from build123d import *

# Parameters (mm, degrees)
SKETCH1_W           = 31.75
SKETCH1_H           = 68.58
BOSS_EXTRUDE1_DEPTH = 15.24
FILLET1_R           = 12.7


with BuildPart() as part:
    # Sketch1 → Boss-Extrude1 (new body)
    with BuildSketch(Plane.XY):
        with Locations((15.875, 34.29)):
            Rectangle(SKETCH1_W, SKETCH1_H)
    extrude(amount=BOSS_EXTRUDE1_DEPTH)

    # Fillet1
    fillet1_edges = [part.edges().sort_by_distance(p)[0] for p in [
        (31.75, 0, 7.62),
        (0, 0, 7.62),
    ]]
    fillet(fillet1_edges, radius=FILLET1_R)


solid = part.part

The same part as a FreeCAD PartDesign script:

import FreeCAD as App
import Part
import Sketcher

V = App.Vector
Q = App.Units.Quantity


def edges_at(feature, points):
    """Names of the edges that pass closest to the given points."""
    edges = feature.Shape.Edges
    near = lambda p: min(range(len(edges)), key=lambda i: edges[i].distToShape(Part.Vertex(*p))[0])
    return sorted({f"Edge{near(p) + 1}" for p in points})

doc = App.newDocument("Part")
body = doc.addObject("PartDesign::Body", "Body")

# Sketch on XY plane
sketch1 = doc.addObject("Sketcher::SketchObject", "Sketch")
body.addObject(sketch1)
sketch1.AttachmentSupport = (doc.XY_Plane, [""])
sketch1.MapMode = "FlatFace"
sketch1.addGeometry(Part.LineSegment(V(0, 68.58, 0), V(0, 0, 0)), False)
sketch1.addGeometry(Part.LineSegment(V(0, 0, 0), V(31.75, 0, 0)), False)
sketch1.addGeometry(Part.LineSegment(V(31.75, 0, 0), V(31.75, 68.58, 0)), False)
sketch1.addGeometry(Part.LineSegment(V(31.75, 68.58, 0), V(0, 68.58, 0)), False)
sketch1.addConstraint(Sketcher.Constraint("Coincident", 0, 2, 1, 1))
sketch1.addConstraint(Sketcher.Constraint("Coincident", 1, 2, 2, 1))
sketch1.addConstraint(Sketcher.Constraint("Coincident", 2, 2, 3, 1))
sketch1.addConstraint(Sketcher.Constraint("Coincident", 3, 2, 0, 1))
sketch1.addConstraint(Sketcher.Constraint("Vertical", 0))
sketch1.addConstraint(Sketcher.Constraint("Horizontal", 1))
sketch1.addConstraint(Sketcher.Constraint("Vertical", 2))
sketch1.addConstraint(Sketcher.Constraint("Horizontal", 3))
sketch1.addConstraint(Sketcher.Constraint("Coincident", 0, 2, -1, 1))
sketch1.addConstraint(Sketcher.Constraint("DistanceY", 0, 2, 0, 1, Q("2.7 in")))
sketch1.addConstraint(Sketcher.Constraint("DistanceX", 1, 1, 1, 2, Q("1.25 in")))
pad1 = doc.addObject("PartDesign::Pad", "Pad")
body.addObject(pad1)
pad1.Profile = sketch1
pad1.Length = Q("0.6 in")
doc.recompute()

fillet = doc.addObject("PartDesign::Fillet", "Fillet")
body.addObject(fillet)
fillet.Base = (pad1, edges_at(pad1, [(31.75, 0, 7.62), (0, 0, 7.62)]))
fillet.Radius = Q("0.5 in")

doc.recompute()
